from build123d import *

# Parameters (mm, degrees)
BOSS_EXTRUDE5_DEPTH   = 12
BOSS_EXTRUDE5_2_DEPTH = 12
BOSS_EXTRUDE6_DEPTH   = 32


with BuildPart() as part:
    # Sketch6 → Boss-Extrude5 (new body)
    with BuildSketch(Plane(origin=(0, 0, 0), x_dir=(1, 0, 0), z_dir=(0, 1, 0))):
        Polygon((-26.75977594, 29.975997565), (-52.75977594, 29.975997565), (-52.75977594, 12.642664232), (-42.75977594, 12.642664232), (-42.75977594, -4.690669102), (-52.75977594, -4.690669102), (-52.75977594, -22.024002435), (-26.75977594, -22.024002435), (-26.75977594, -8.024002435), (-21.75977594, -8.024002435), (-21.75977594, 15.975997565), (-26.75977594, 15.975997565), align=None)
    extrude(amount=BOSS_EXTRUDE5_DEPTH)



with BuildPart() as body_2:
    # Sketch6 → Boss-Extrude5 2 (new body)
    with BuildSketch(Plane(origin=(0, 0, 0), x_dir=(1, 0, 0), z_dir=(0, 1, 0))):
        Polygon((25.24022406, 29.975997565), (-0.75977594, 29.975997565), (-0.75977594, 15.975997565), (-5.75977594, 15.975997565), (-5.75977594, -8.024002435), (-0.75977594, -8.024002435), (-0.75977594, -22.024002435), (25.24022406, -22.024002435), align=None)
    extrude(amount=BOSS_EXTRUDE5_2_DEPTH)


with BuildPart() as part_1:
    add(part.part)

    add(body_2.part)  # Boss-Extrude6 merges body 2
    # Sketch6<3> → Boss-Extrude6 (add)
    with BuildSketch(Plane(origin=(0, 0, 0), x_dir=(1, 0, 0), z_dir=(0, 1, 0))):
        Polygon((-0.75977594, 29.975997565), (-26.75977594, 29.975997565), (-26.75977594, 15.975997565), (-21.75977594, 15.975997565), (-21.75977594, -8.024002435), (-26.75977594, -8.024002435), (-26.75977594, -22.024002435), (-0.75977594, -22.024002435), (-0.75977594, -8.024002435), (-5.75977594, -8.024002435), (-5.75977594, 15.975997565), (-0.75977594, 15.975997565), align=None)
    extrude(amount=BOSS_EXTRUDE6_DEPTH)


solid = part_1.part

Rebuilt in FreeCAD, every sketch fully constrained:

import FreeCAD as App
import Part
import Sketcher
from FreeCAD import Vector
Q = App.Units.Quantity

doc = App.newDocument("Part")
body = doc.addObject("PartDesign::Body", "Body")

# Sketch on XZ plane
sketch1 = doc.addObject("Sketcher::SketchObject", "Sketch")
body.addObject(sketch1)
sketch1.AttachmentSupport = (doc.XZ_Plane, [""])
sketch1.MapMode = "FlatFace"
sketch1.addGeometry([
    Part.LineSegment(Vector(-27, -30, 0), Vector(-53, -30, 0)),  # 0
    Part.LineSegment(Vector(-53, -30, 0), Vector(-53, -13, 0)),  # 1
    Part.LineSegment(Vector(-53, -13, 0), Vector(-43, -13, 0)),  # 2
    Part.LineSegment(Vector(-43, -13, 0), Vector(-43, 5, 0)),  # 3
    Part.LineSegment(Vector(-43, 5, 0), Vector(-53, 5, 0)),  # 4
    Part.LineSegment(Vector(-53, 5, 0), Vector(-53, 22, 0)),  # 5
    Part.LineSegment(Vector(-53, 22, 0), Vector(-27, 22, 0)),  # 6
    Part.LineSegment(Vector(-27, 22, 0), Vector(-27, 8, 0)),  # 7
    Part.LineSegment(Vector(-27, 8, 0), Vector(-22, 8, 0)),  # 8
    Part.LineSegment(Vector(-22, 8, 0), Vector(-22, -16, 0)),  # 9
    Part.LineSegment(Vector(-22, -16, 0), Vector(-27, -16, 0)),  # 10
    Part.LineSegment(Vector(-27, -16, 0), Vector(-27, -30, 0)),  # 11
], False)
sketch1.addConstraint([
    Sketcher.Constraint("Coincident", 0, 2, 1, 1),
    Sketcher.Constraint("Coincident", 1, 2, 2, 1),
    Sketcher.Constraint("Coincident", 2, 2, 3, 1),
    Sketcher.Constraint("Coincident", 3, 2, 4, 1),
    Sketcher.Constraint("Coincident", 4, 2, 5, 1),
    Sketcher.Constraint("Coincident", 5, 2, 6, 1),
    Sketcher.Constraint("Coincident", 6, 2, 7, 1),
    Sketcher.Constraint("Coincident", 7, 2, 8, 1),
    Sketcher.Constraint("Coincident", 8, 2, 9, 1),
    Sketcher.Constraint("Coincident", 9, 2, 10, 1),
    Sketcher.Constraint("Coincident", 10, 2, 11, 1),
    Sketcher.Constraint("Coincident", 11, 2, 0, 1),
    Sketcher.Constraint("Horizontal", 0),
    Sketcher.Constraint("Vertical", 1),
    Sketcher.Constraint("Horizontal", 2),
    Sketcher.Constraint("Vertical", 3),
    Sketcher.Constraint("Horizontal", 4),
    Sketcher.Constraint("Vertical", 5),
    Sketcher.Constraint("Horizontal", 6),
    Sketcher.Constraint("Vertical", 7),
    Sketcher.Constraint("Horizontal", 8),
    Sketcher.Constraint("Vertical", 9),
    Sketcher.Constraint("Horizontal", 10),
    Sketcher.Constraint("Vertical", 11),
    Sketcher.Constraint("Vertical", 1, 2, 4, 2),
    Sketcher.Constraint("Vertical", 7, 2, 10, 2),
    Sketcher.Constraint("Equal", 1, 3),
    Sketcher.Constraint("Equal", 3, 5),
    Sketcher.Constraint("Equal", 7, 11),
    Sketcher.Constraint("DistanceX", 0, 2, 0, 1, Q("26 mm")),
    Sketcher.Constraint("DistanceX", 2, 1, 2, 2, Q("10 mm")),
    Sketcher.Constraint("DistanceX", 8, 1, 8, 2, Q("5 mm")),
    Sketcher.Constraint("DistanceY", 7, 2, 7, 1, Q("14 mm")),
    Sketcher.Constraint("DistanceY", 9, 2, 9, 1, Q("24 mm")),
    Sketcher.Constraint("DistanceY", -1, 1, 3, 2, Q("4.690669 mm")),
    Sketcher.Constraint("DistanceX", 0, 2, -1, 1, Q("52.759776 mm")),
])
pad1 = doc.addObject("PartDesign::Pad", "Pad")
body.addObject(pad1)
pad1.Profile = sketch1
pad1.Length = 12
pad1.Reversed = True
body2 = doc.addObject("PartDesign::Body", "Body001")

# Sketch on XZ plane
sketch2 = doc.addObject("Sketcher::SketchObject", "Sketch001")
body2.addObject(sketch2)
sketch2.AttachmentSupport = (doc.getObject("XZ_Plane001"), [""])
sketch2.MapMode = "FlatFace"
sketch2.addGeometry([
    Part.LineSegment(Vector(25, -30, 0), Vector(-1, -30, 0)),  # 0
    Part.LineSegment(Vector(-1, -30, 0), Vector(-1, -16, 0)),  # 1
    Part.LineSegment(Vector(-1, -16, 0), Vector(-6, -16, 0)),  # 2
    Part.LineSegment(Vector(-6, -16, 0), Vector(-6, 8, 0)),  # 3
    Part.LineSegment(Vector(-6, 8, 0), Vector(-1, 8, 0)),  # 4
    Part.LineSegment(Vector(-1, 8, 0), Vector(-1, 22, 0)),  # 5
    Part.LineSegment(Vector(-1, 22, 0), Vector(25, 22, 0)),  # 6
    Part.LineSegment(Vector(25, 22, 0), Vector(25, -30, 0)),  # 7
], False)
sketch2.addConstraint([
    Sketcher.Constraint("Coincident", 0, 2, 1, 1),
    Sketcher.Constraint("Coincident", 1, 2, 2, 1),
    Sketcher.Constraint("Coincident", 2, 2, 3, 1),
    Sketcher.Constraint("Coincident", 3, 2, 4, 1),
    Sketcher.Constraint("Coincident", 4, 2, 5, 1),
    Sketcher.Constraint("Coincident", 5, 2, 6, 1),
    Sketcher.Constraint("Coincident", 6, 2, 7, 1),
    Sketcher.Constraint("Coincident", 7, 2, 0, 1),
    Sketcher.Constraint("Horizontal", 0),
    Sketcher.Constraint("Vertical", 1),
    Sketcher.Constraint("Horizontal", 2),
    Sketcher.Constraint("Vertical", 3),
    Sketcher.Constraint("Horizontal", 4),
    Sketcher.Constraint("Vertical", 5),
    Sketcher.Constraint("Horizontal", 6),
    Sketcher.Constraint("Vertical", 7),
    Sketcher.Constraint("Vertical", 1, 2, 4, 2),
    Sketcher.Constraint("Equal", 1, 5),
    Sketcher.Constraint("DistanceX", 0, 2, 0, 1, Q("26 mm")),
    Sketcher.Constraint("DistanceX", 2, 2, 2, 1, Q("5 mm")),
    Sketcher.Constraint("DistanceY", 1, 1, 1, 2, Q("14 mm")),
    Sketcher.Constraint("DistanceY", 3, 1, 3, 2, Q("24 mm")),
    Sketcher.Constraint("DistanceX", 0, 2, -1, 1, Q("0.759776 mm")),
    Sketcher.Constraint("DistanceY", 0, 2, -1, 1, Q("29.975998 mm")),
])
pad2 = doc.addObject("PartDesign::Pad", "Pad001")
body2.addObject(pad2)
pad2.Profile = sketch2
pad2.Length = 12
pad2.Reversed = True
body.AllowCompound = True
doc.recompute()

boolean = doc.addObject("PartDesign::Boolean", "Boolean")
body.addObject(boolean)
boolean.Type = "Fuse"
boolean.addObjects([body2])

# Sketch on XZ plane
sketch3 = doc.addObject("Sketcher::SketchObject", "Sketch002")
body.addObject(sketch3)
sketch3.AttachmentSupport = (doc.XZ_Plane, [""])
sketch3.MapMode = "FlatFace"
sketch3.addGeometry([
    Part.LineSegment(Vector(-1, -30, 0), Vector(-27, -30, 0)),  # 0
    Part.LineSegment(Vector(-27, -30, 0), Vector(-27, -16, 0)),  # 1
    Part.LineSegment(Vector(-27, -16, 0), Vector(-22, -16, 0)),  # 2
    Part.LineSegment(Vector(-22, -16, 0), Vector(-22, 8, 0)),  # 3
    Part.LineSegment(Vector(-22, 8, 0), Vector(-27, 8, 0)),  # 4
    Part.LineSegment(Vector(-27, 8, 0), Vector(-27, 22, 0)),  # 5
    Part.LineSegment(Vector(-27, 22, 0), Vector(-1, 22, 0)),  # 6
    Part.LineSegment(Vector(-1, 22, 0), Vector(-1, 8, 0)),  # 7
    Part.LineSegment(Vector(-1, 8, 0), Vector(-6, 8, 0)),  # 8
    Part.LineSegment(Vector(-6, 8, 0), Vector(-6, -16, 0)),  # 9
    Part.LineSegment(Vector(-6, -16, 0), Vector(-1, -16, 0)),  # 10
    Part.LineSegment(Vector(-1, -16, 0), Vector(-1, -30, 0)),  # 11
], False)
sketch3.addConstraint([
    Sketcher.Constraint("Coincident", 0, 2, 1, 1),
    Sketcher.Constraint("Coincident", 1, 2, 2, 1),
    Sketcher.Constraint("Coincident", 2, 2, 3, 1),
    Sketcher.Constraint("Coincident", 3, 2, 4, 1),
    Sketcher.Constraint("Coincident", 4, 2, 5, 1),
    Sketcher.Constraint("Coincident", 5, 2, 6, 1),
    Sketcher.Constraint("Coincident", 6, 2, 7, 1),
    Sketcher.Constraint("Coincident", 7, 2, 8, 1),
    Sketcher.Constraint("Coincident", 8, 2, 9, 1),
    Sketcher.Constraint("Coincident", 9, 2, 10, 1),
    Sketcher.Constraint("Coincident", 10, 2, 11, 1),
    Sketcher.Constraint("Coincident", 11, 2, 0, 1),
    Sketcher.Constraint("Horizontal", 0),
    Sketcher.Constraint("Vertical", 1),
    Sketcher.Constraint("Horizontal", 2),
    Sketcher.Constraint("Vertical", 3),
    Sketcher.Constraint("Horizontal", 4),
    Sketcher.Constraint("Vertical", 5),
    Sketcher.Constraint("Horizontal", 6),
    Sketcher.Constraint("Vertical", 7),
    Sketcher.Constraint("Horizontal", 8),
    Sketcher.Constraint("Vertical", 9),
    Sketcher.Constraint("Horizontal", 10),
    Sketcher.Constraint("Vertical", 11),
    Sketcher.Constraint("Horizontal", 4, 2, 7, 2),
    Sketcher.Constraint("Horizontal", 2, 2, 9, 2),
    Sketcher.Constraint("Vertical", 1, 2, 4, 2),
    Sketcher.Constraint("Vertical", 7, 2, 10, 2),
    Sketcher.Constraint("Equal", 4, 8),
    Sketcher.Constraint("Equal", 1, 5),
    Sketcher.Constraint("DistanceX", 0, 2, 0, 1, Q("26 mm")),
    Sketcher.Constraint("DistanceX", 2, 1, 2, 2, Q("5 mm")),
    Sketcher.Constraint("DistanceY", 1, 1, 1, 2, Q("14 mm")),
    Sketcher.Constraint("DistanceY", 3, 1, 3, 2, Q("24 mm")),
    Sketcher.Constraint("DistanceX", 0, 2, -1, 1, Q("26.759776 mm")),
    Sketcher.Constraint("DistanceY", 0, 2, -1, 1, Q("29.975998 mm")),
])
pad3 = doc.addObject("PartDesign::Pad", "Pad002")
body.addObject(pad3)
pad3.Profile = sketch3
pad3.Length = 32
pad3.Reversed = True

doc.recompute()
